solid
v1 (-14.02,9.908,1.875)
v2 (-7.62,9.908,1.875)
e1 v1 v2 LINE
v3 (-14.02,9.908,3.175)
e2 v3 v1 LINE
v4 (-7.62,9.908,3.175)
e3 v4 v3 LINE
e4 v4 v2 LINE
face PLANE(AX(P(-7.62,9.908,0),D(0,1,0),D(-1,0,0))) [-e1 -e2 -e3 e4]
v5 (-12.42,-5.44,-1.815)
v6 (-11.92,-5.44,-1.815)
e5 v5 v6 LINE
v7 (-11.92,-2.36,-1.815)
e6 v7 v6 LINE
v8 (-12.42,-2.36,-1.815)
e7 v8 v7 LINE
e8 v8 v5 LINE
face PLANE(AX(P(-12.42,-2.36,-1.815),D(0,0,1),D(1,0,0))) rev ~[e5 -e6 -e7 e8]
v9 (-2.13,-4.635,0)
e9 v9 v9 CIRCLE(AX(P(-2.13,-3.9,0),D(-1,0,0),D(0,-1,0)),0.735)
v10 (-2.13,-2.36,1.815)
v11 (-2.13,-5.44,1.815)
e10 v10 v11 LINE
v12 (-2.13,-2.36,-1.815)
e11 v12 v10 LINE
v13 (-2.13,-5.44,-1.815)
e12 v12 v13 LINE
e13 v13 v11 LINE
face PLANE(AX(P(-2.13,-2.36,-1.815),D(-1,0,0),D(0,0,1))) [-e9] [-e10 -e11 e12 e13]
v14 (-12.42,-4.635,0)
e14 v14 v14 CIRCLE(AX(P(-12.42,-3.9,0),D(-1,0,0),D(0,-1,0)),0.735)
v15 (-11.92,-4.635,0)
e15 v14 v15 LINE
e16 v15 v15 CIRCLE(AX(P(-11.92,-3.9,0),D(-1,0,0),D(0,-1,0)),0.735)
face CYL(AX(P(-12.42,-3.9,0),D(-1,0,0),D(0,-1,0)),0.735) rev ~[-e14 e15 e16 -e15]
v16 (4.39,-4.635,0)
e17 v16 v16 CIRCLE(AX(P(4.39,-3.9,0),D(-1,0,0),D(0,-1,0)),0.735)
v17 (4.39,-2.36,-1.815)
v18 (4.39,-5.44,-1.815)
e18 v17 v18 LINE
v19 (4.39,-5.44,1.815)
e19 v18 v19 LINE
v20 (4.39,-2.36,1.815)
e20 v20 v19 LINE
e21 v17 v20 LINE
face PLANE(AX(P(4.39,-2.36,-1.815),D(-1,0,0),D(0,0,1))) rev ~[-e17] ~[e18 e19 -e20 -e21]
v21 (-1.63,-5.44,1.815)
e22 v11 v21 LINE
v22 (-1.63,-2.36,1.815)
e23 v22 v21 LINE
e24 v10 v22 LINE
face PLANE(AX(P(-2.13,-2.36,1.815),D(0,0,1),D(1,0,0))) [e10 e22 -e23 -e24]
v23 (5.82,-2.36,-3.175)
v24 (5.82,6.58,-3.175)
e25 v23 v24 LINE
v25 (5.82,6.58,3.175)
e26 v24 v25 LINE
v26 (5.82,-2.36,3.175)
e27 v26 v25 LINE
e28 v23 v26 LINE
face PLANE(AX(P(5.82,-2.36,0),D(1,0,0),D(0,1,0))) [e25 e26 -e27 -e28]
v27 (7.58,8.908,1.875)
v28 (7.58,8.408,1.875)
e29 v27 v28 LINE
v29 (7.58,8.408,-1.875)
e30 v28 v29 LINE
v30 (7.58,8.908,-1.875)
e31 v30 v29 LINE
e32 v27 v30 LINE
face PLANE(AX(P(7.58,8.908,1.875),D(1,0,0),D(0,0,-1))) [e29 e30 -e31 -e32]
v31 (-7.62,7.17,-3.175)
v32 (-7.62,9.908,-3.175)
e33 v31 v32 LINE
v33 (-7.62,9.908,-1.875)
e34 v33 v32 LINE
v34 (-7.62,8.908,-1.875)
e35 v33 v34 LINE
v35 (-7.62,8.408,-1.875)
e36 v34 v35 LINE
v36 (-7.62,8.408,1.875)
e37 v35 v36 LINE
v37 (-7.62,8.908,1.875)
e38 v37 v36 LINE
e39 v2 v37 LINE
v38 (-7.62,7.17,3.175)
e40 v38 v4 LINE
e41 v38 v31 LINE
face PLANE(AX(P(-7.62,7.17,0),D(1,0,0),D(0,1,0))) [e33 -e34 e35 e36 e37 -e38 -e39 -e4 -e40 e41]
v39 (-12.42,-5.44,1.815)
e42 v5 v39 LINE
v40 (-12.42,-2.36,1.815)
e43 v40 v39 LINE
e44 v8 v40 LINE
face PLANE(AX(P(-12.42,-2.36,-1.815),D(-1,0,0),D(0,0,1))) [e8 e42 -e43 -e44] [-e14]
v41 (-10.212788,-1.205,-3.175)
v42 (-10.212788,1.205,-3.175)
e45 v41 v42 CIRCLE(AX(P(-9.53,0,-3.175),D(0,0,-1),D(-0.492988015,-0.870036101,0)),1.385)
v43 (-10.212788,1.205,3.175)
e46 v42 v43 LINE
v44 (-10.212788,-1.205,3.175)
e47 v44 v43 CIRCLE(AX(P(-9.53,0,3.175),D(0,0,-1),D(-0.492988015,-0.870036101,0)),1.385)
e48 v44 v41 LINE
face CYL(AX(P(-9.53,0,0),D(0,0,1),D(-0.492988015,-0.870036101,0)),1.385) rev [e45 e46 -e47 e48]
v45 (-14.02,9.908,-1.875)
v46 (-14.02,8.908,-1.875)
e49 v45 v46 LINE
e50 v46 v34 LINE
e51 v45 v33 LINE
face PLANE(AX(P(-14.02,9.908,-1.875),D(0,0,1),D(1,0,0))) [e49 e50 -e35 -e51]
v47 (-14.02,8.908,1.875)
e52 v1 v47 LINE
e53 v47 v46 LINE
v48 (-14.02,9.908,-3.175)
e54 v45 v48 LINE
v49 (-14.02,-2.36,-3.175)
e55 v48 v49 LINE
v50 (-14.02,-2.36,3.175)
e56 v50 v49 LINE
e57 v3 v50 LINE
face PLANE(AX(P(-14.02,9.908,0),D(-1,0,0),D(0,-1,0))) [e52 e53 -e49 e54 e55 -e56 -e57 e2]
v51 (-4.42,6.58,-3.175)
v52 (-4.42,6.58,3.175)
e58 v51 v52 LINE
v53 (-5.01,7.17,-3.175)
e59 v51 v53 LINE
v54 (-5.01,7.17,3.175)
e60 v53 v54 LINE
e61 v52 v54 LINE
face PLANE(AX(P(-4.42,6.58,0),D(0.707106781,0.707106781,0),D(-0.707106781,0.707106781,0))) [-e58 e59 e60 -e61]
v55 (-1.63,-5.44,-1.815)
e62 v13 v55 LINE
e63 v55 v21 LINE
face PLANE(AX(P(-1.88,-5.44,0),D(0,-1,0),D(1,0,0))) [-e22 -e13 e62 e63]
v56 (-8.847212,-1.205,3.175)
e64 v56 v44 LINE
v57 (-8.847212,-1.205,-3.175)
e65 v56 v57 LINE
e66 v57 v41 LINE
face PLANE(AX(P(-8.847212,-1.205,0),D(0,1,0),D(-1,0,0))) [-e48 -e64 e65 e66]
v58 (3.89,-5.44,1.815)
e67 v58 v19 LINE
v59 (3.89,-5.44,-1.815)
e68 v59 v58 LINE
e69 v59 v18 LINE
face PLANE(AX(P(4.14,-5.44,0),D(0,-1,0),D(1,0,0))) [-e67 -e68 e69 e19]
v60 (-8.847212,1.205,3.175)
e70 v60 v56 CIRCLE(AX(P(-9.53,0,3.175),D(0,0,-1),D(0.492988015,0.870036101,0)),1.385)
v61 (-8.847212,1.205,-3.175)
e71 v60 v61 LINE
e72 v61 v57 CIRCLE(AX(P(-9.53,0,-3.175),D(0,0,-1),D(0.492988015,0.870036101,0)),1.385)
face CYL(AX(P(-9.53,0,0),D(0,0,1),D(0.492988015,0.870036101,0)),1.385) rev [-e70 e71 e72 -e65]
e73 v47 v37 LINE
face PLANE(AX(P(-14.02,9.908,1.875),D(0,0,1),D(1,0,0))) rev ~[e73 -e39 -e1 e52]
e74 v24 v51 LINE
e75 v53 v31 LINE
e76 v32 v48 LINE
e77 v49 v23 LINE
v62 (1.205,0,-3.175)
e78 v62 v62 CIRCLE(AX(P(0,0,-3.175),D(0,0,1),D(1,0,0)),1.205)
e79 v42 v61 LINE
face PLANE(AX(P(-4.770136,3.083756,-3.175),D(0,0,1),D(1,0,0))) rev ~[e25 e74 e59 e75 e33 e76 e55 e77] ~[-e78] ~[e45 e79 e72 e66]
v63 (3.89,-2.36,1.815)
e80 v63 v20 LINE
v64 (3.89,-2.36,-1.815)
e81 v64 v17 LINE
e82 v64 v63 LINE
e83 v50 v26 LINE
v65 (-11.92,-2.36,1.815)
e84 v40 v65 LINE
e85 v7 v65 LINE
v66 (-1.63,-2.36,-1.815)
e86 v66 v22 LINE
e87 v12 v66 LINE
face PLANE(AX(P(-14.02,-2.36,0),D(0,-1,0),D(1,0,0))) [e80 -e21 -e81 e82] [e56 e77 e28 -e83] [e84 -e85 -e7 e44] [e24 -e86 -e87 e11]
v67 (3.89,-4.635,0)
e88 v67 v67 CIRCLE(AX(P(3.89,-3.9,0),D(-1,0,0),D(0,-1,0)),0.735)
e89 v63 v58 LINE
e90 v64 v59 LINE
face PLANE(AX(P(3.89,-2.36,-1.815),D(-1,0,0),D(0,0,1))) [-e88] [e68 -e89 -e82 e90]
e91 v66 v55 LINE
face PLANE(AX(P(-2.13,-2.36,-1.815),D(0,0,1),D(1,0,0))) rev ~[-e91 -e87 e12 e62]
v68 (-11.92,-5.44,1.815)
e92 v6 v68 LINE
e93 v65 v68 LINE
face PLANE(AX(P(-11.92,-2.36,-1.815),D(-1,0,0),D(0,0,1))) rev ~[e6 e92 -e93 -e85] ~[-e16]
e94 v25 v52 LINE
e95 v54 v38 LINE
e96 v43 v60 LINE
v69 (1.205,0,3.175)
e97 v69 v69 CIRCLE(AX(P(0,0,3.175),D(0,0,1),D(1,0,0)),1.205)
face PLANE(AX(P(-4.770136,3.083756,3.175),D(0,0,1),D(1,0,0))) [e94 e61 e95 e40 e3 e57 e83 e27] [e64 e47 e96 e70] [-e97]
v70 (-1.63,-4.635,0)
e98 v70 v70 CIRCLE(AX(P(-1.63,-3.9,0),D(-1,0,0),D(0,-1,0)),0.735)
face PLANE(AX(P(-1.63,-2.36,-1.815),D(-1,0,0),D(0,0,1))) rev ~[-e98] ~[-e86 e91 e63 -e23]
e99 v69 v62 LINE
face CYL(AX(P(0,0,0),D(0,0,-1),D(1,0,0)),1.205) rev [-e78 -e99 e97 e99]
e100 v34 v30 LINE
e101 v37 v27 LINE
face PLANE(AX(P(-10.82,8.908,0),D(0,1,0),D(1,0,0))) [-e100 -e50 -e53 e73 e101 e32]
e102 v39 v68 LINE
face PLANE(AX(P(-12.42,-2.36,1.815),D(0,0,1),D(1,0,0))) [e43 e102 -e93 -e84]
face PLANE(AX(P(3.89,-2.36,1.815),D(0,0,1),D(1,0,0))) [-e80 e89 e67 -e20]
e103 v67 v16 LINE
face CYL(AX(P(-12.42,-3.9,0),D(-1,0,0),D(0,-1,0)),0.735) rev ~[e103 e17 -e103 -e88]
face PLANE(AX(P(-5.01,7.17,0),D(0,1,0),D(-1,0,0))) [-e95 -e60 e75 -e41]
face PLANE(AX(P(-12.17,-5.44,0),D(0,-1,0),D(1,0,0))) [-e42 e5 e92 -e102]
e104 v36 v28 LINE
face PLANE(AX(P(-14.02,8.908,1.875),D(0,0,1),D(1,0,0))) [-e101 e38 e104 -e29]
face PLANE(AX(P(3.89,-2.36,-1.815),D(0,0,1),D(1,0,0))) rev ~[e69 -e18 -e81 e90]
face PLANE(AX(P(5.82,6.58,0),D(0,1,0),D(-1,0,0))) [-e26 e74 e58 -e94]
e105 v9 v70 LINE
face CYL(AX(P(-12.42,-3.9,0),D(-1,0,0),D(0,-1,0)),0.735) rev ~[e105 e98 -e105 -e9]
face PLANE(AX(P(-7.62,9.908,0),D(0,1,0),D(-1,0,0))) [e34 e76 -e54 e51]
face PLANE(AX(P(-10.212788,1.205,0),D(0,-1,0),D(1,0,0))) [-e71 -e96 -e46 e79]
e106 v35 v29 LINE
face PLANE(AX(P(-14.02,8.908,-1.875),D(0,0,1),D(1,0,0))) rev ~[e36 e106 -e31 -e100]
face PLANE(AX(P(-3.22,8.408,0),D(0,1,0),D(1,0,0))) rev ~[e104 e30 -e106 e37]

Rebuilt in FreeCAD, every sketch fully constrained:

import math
import FreeCAD as App
import Part
import Sketcher

V = App.Vector
Q = App.Units.Quantity


def add_polygon(sketch, points):
    """Adds a closed chain of lines whose ends are joined by coincident constraints."""
    first, n = sketch.GeometryCount, len(points)
    for a, b in zip(points, points[1:] + points[:1]):
        sketch.addGeometry(Part.LineSegment(App.Vector(*a, 0), App.Vector(*b, 0)), False)
    for i in range(n):
        sketch.addConstraint(Sketcher.Constraint("Coincident", first + i, 2, first + (i + 1) % n, 1))

doc = App.newDocument("Part")
params = doc.addObject("Spreadsheet::Sheet", "Params")
for row, (alias, value) in enumerate([
    ("sketch1_diameter", "2.41 mm"),
    ("sketch1_width", "6.4 mm"),
    ("sketch1_width2", "19.84 mm"),
    ("sketch1_width3", "10.24 mm"),
    ("sketch1_width4", "2.61 mm"),
    ("pad1_length", "6.35 mm"),
    ("sketch2_width", "0.5 mm"),
    ("sketch2_height", "3.63 mm"),
    ("pad2_length", "3.08 mm"),
    ("sketch3_diameter", "1.47 mm"),
    ("sketch4_width", "6.4 mm"),
    ("sketch4_height", "3.75 mm"),
    ("pocket2_length", "1 mm"),
    ("sketch5_width", "21.6 mm"),
    ("sketch5_height", "3.75 mm"),
    ("pad3_length", "0.5 mm"),
], start=1):
    params.set(f"A{row}", alias)
    params.set(f"B{row}", "=" + value)
    params.setAlias(f"B{row}", alias)

body = doc.addObject("PartDesign::Body", "Body")

# Sketch on XY plane
sketch1 = body.newObject("Sketcher::SketchObject", "Sketch")
sketch1.AttachmentSupport = (doc.getObject("XY_Plane"), [""])
sketch1.MapMode = "FlatFace"
add_polygon(sketch1, [(-14, -2.4), (5.8, -2.4), (5.8, 6.6), (-4.4, 6.6), (-5, 7.2), (-7.6, 7.2), (-7.6, 9.9), (-14, 9.9)])  # lines 0-7
sketch1.addGeometry(Part.ArcOfCircle(Part.Circle(V(-9.5, 0, 0), V(0, 0, 1), 1.4), math.radians(120), math.radians(240)), False)  # 8
sketch1.addGeometry(Part.LineSegment(V(-10.2, 1.2, 0), V(-8.8, 1.2, 0)), False)  # 9
sketch1.addGeometry(Part.ArcOfCircle(Part.Circle(V(-9.5, 0, 0), V(0, 0, 1), 1.4), math.radians(-60), math.radians(60)), False)  # 10
sketch1.addGeometry(Part.LineSegment(V(-8.8, -1.2, 0), V(-10.2, -1.2, 0)), False)  # 11
sketch1.addGeometry(Part.Circle(V(0, 0, 0), V(0, 0, 1), 1.2), False)  # 12
sketch1.addConstraint([
    Sketcher.Constraint("Coincident", 8, 1, 9, 1),
    Sketcher.Constraint("Coincident", 9, 2, 10, 2),
    Sketcher.Constraint("Coincident", 10, 1, 11, 1),
    Sketcher.Constraint("Coincident", 11, 2, 8, 2),
    Sketcher.Constraint("Horizontal", 0),
    Sketcher.Constraint("Vertical", 1),
    Sketcher.Constraint("Horizontal", 2),
    Sketcher.Constraint("Horizontal", 4),
    Sketcher.Constraint("Vertical", 5),
    Sketcher.Constraint("Horizontal", 6),
    Sketcher.Constraint("Vertical", 7),
    Sketcher.Constraint("Horizontal", 9),
    Sketcher.Constraint("Horizontal", 11),
    Sketcher.Constraint("Coincident", 12, 3, -1, 1),
    Sketcher.Constraint("Coincident", 10, 3, 8, 3),
    Sketcher.Constraint("Equal", 8, 10),
    Sketcher.Constraint("Symmetric", 9, 2, 10, 1, -1),
    Sketcher.Constraint("Diameter", 12, 2.41),
    Sketcher.Constraint("Angle", 3, Q("135 deg")),
    Sketcher.Constraint("DistanceX", 6, 2, 6, 1, 6.4),
    Sketcher.Constraint("Radius", 8, 1.385),
    Sketcher.Constraint("DistanceX", 0, 1, 0, 2, 19.84),
    Sketcher.Constraint("DistanceX", 2, 2, 2, 1, 10.24),
    Sketcher.Constraint("DistanceX", 4, 2, 4, 1, 2.61),
    Sketcher.Constraint("DistanceY", 1, 1, 1, 2, 8.94),
    Sketcher.Constraint("DistanceY", 5, 1, 5, 2, 2.738),
    Sketcher.Constraint("DistanceX", 8, 3, -1, 1, 9.53),
    Sketcher.Constraint("DistanceX", -1, 1, 0, 2, 5.82),
    Sketcher.Constraint("DistanceY", 0, 2, -1, 1, 2.36),
    Sketcher.Constraint("DistanceY", 10, 1, 9, 2, 2.41),
])
sketch1.setExpression("Constraints[25]", "Params.sketch1_diameter")
sketch1.setExpression("Constraints[27]", "Params.sketch1_width")
sketch1.setExpression("Constraints[29]", "Params.sketch1_width2")
sketch1.setExpression("Constraints[30]", "Params.sketch1_width3")
sketch1.setExpression("Constraints[31]", "Params.sketch1_width4")
pad1 = body.newObject("PartDesign::Pad", "Pad")
pad1.Profile = sketch1
pad1.setExpression("Length", "Params.pad1_length")
pad1.Midplane = True

# Sketch on XZ plane
sketch2 = body.newObject("Sketcher::SketchObject", "Sketch001")
sketch2.AttachmentSupport = (doc.getObject("XZ_Plane"), [""])
sketch2.MapMode = "FlatFace"
sketch2.AttachmentOffset = App.Placement(V(0, 0, 2.36), App.Rotation())
add_polygon(sketch2, [(-12.42, 1.81), (-12.42, -1.81), (-11.92, -1.81), (-11.92, 1.81)])  # lines 0-3
add_polygon(sketch2, [(-2.13, 1.81), (-2.13, -1.81), (-1.63, -1.81), (-1.63, 1.81)])  # lines 4-7
add_polygon(sketch2, [(3.89, 1.81), (3.89, -1.81), (4.39, -1.81), (4.39, 1.81)])  # lines 8-11
sketch2.addConstraint([
    Sketcher.Constraint("Vertical", 0),
    Sketcher.Constraint("Horizontal", 1),
    Sketcher.Constraint("Vertical", 2),
    Sketcher.Constraint("Horizontal", 3),
    Sketcher.Constraint("Vertical", 4),
    Sketcher.Constraint("Horizontal", 5),
    Sketcher.Constraint("Vertical", 6),
    Sketcher.Constraint("Horizontal", 7),
    Sketcher.Constraint("Vertical", 8),
    Sketcher.Constraint("Horizontal", 9),
    Sketcher.Constraint("Vertical", 10),
    Sketcher.Constraint("Horizontal", 11),
    Sketcher.Constraint("Horizontal", 1, 2, 4, 2),
    Sketcher.Constraint("Horizontal", 3, 2, 6, 2),
    Sketcher.Constraint("Horizontal", 5, 2, 8, 2),
    Sketcher.Constraint("Horizontal", 7, 2, 10, 2),
    Sketcher.Constraint("Equal", 3, 5),
    Sketcher.Constraint("Equal", 7, 9),
    Sketcher.Constraint("DistanceX", 1, 1, 1, 2, 0.5),
    Sketcher.Constraint("DistanceY", 0, 2, 0, 1, 3.63),
    Sketcher.Constraint("DistanceX", 0, 2, -1, 1, 12.42),
    Sketcher.Constraint("DistanceX", 4, 2, -1, 1, 2.13),
    Sketcher.Constraint("DistanceX", -1, 1, 8, 2, 3.89),
    Sketcher.Constraint("DistanceY", 0, 2, -1, 1, 1.815),
])
sketch2.setExpression("Constraints[30]", "Params.sketch2_width")
sketch2.setExpression("Constraints[31]", "Params.sketch2_height")
pad2 = body.newObject("PartDesign::Pad", "Pad001")
pad2.Profile = sketch2
pad2.setExpression("Length", "Params.pad2_length")

# Sketch on YZ plane
sketch3 = body.newObject("Sketcher::SketchObject", "Sketch002")
sketch3.AttachmentSupport = (doc.getObject("YZ_Plane"), [""])
sketch3.MapMode = "FlatFace"
sketch3.AttachmentOffset = App.Placement(V(0, 0, -12.42), App.Rotation())
sketch3.addGeometry(Part.Circle(V(-3.9, 0, 0), V(0, 0, 1), 0.7), False)
sketch3.addConstraint([
    Sketcher.Constraint("PointOnObject", 0, 3, -1),
    Sketcher.Constraint("Diameter", 0, 1.47),
    Sketcher.Constraint("DistanceX", 0, 3, -1, 1, 3.9),
])
sketch3.setExpression("Constraints[1]", "Params.sketch3_diameter")
pocket1 = body.newObject("PartDesign::Pocket", "Pocket")
pocket1.Profile = sketch3
pocket1.Type = "ThroughAll"
pocket1.Reversed = True

# Sketch on XZ plane
sketch4 = body.newObject("Sketcher::SketchObject", "Sketch003")
sketch4.AttachmentSupport = (doc.getObject("XZ_Plane"), [""])
sketch4.MapMode = "FlatFace"
sketch4.AttachmentOffset = App.Placement(V(0, 0, -9.908), App.Rotation())
add_polygon(sketch4, [(-14, -1.9), (-14, 1.9), (-7.6, 1.9), (-7.6, -1.9)])  # lines 0-3
sketch4.addConstraint([
    Sketcher.Constraint("Vertical", 0),
    Sketcher.Constraint("Horizontal", 1),
    Sketcher.Constraint("Vertical", 2),
    Sketcher.Constraint("Horizontal", 3),
    Sketcher.Constraint("DistanceX", 1, 1, 1, 2, 6.4),
    Sketcher.Constraint("DistanceY", 0, 1, 0, 2, 3.75),
    Sketcher.Constraint("DistanceX", 0, 2, -1, 1, 14.02),
    Sketcher.Constraint("DistanceY", -1, 1, 0, 2, 1.875),
])
sketch4.setExpression("Constraints[8]", "Params.sketch4_width")
sketch4.setExpression("Constraints[9]", "Params.sketch4_height")
pocket2 = body.newObject("PartDesign::Pocket", "Pocket001")
pocket2.Profile = sketch4
pocket2.setExpression("Length", "Params.pocket2_length")
pocket2.Reversed = True

# Sketch on XZ plane
sketch5 = body.newObject("Sketcher::SketchObject", "Sketch004")
sketch5.AttachmentSupport = (doc.getObject("XZ_Plane"), [""])
sketch5.MapMode = "FlatFace"
sketch5.AttachmentOffset = App.Placement(V(0, 0, -8.908), App.Rotation())
add_polygon(sketch5, [(-14, -1.9), (-14, 1.9), (7.6, 1.9), (7.6, -1.9)])  # lines 0-3
sketch5.addConstraint([
    Sketcher.Constraint("Vertical", 0),
    Sketcher.Constraint("Horizontal", 1),
    Sketcher.Constraint("Vertical", 2),
    Sketcher.Constraint("Horizontal", 3),
    Sketcher.Constraint("DistanceX", 1, 1, 1, 2, 21.6),
    Sketcher.Constraint("DistanceY", 0, 1, 0, 2, 3.75),
    Sketcher.Constraint("DistanceX", 0, 2, -1, 1, 14.02),
    Sketcher.Constraint("DistanceY", -1, 1, 0, 2, 1.875),
])
sketch5.setExpression("Constraints[8]", "Params.sketch5_width")
sketch5.setExpression("Constraints[9]", "Params.sketch5_height")
pad3 = body.newObject("PartDesign::Pad", "Pad002")
pad3.Profile = sketch5
pad3.setExpression("Length", "Params.pad3_length")

doc.recompute()
